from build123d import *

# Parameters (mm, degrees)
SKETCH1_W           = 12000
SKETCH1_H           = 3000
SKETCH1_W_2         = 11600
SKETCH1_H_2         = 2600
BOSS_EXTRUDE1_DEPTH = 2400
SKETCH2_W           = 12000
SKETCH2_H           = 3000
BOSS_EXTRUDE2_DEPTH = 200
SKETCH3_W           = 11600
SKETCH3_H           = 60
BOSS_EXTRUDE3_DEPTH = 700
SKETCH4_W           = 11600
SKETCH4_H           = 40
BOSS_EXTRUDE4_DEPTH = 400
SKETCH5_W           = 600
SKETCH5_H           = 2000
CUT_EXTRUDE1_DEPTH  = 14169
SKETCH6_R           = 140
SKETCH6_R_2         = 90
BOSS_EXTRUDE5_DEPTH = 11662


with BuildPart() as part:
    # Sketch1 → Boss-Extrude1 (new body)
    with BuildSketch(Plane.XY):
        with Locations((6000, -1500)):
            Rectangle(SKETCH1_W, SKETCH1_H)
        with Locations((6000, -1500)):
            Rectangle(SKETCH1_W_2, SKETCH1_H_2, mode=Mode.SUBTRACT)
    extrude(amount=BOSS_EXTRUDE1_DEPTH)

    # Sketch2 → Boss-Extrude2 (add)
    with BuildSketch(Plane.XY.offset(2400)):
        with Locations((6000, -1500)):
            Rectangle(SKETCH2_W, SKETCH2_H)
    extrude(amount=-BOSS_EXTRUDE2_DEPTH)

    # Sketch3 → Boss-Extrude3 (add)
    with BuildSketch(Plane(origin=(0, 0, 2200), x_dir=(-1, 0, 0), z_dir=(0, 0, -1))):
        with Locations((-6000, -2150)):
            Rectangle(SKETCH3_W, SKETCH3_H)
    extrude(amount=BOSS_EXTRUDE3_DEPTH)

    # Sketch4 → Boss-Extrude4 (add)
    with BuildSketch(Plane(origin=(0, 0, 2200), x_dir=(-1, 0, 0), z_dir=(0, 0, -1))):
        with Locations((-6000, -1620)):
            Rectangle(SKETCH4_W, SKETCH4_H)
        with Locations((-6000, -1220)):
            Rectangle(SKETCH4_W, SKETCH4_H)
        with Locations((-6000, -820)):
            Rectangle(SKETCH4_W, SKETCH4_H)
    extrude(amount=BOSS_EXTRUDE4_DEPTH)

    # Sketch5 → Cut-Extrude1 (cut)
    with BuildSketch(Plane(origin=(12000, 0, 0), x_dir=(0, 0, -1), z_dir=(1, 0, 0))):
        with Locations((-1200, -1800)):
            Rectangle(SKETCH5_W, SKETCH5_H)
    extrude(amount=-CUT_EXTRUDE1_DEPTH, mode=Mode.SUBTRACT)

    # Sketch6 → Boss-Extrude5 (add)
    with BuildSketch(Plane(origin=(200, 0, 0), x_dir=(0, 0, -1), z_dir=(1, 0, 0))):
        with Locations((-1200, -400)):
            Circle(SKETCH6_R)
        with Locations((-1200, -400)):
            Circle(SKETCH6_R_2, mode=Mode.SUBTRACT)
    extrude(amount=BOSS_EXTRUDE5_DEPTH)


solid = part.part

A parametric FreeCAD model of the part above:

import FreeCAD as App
import Part
import Sketcher


def add_polygon(sketch, points):
    """Adds a closed chain of lines whose ends are joined by coincident constraints."""
    first, n = sketch.GeometryCount, len(points)
    for a, b in zip(points, points[1:] + points[:1]):
        sketch.addGeometry(Part.LineSegment(App.Vector(*a, 0), App.Vector(*b, 0)), False)
    for i in range(n):
        sketch.addConstraint(Sketcher.Constraint("Coincident", first + i, 2, first + (i + 1) % n, 1))

doc = App.newDocument("Part")
body = doc.addObject("PartDesign::Body", "Body")

sketch1 = body.newObject("Sketcher::SketchObject", "Sketch")
sketch1.AttachmentSupport = (doc.getObject("XY_Plane"), [""])
sketch1.MapMode = "FlatFace"
add_polygon(sketch1, [(0, 0), (0, -3000), (12000, -3000), (12000, 0)])
add_polygon(sketch1, [(11800, -2800), (200, -2800), (200, -200), (11800, -200)])
sketch1.addConstraint([
    Sketcher.Constraint("Vertical", 0),
    Sketcher.Constraint("Horizontal", 1),
    Sketcher.Constraint("Vertical", 2),
    Sketcher.Constraint("Horizontal", 3),
    Sketcher.Constraint("Horizontal", 4),
    Sketcher.Constraint("Vertical", 5),
    Sketcher.Constraint("Horizontal", 6),
    Sketcher.Constraint("Vertical", 7),
    Sketcher.Constraint("Coincident", 3, 2, -1, 1),
    Sketcher.Constraint("DistanceX", 1, 1, 1, 2, 12000.0),
    Sketcher.Constraint("DistanceX", 4, 2, 4, 1, 11600.0),
    Sketcher.Constraint("DistanceY", 0, 2, 0, 1, 3000.0),
    Sketcher.Constraint("DistanceY", 5, 1, 5, 2, 2600.0),
    Sketcher.Constraint("DistanceX", -1, 1, 4, 2, 200.0),
    Sketcher.Constraint("DistanceY", 4, 2, -1, 1, 2800.0),
])
pad1 = body.newObject("PartDesign::Pad", "Pad")
pad1.Profile = sketch1
pad1.Length = 2400

sketch2 = body.newObject("Sketcher::SketchObject", "Sketch001")
sketch2.AttachmentSupport = (doc.getObject("XY_Plane"), [""])
sketch2.MapMode = "FlatFace"
sketch2.AttachmentOffset = App.Placement(App.Vector(0, 0, 2400), App.Rotation())
add_polygon(sketch2, [(0, 0), (0, -3000), (12000, -3000), (12000, 0)])
sketch2.addConstraint([
    Sketcher.Constraint("Vertical", 0),
    Sketcher.Constraint("Horizontal", 1),
    Sketcher.Constraint("Vertical", 2),
    Sketcher.Constraint("Horizontal", 3),
    Sketcher.Constraint("Coincident", 3, 2, -1, 1),
    Sketcher.Constraint("DistanceX", 1, 1, 1, 2, 12000.0),
    Sketcher.Constraint("DistanceY", 0, 2, 0, 1, 3000.0),
])
pad2 = body.newObject("PartDesign::Pad", "Pad001")
pad2.Profile = sketch2
pad2.Length = 200
pad2.Reversed = True

sketch3 = body.newObject("Sketcher::SketchObject", "Sketch002")
sketch3.AttachmentSupport = (doc.getObject("XY_Plane"), [""])
sketch3.MapMode = "FlatFace"
sketch3.AttachmentOffset = App.Placement(App.Vector(0, 0, 2200), App.Rotation())
add_polygon(sketch3, [(11800, -2120), (11800, -2180), (200, -2180), (200, -2120)])
sketch3.addConstraint([
    Sketcher.Constraint("Vertical", 0),
    Sketcher.Constraint("Horizontal", 1),
    Sketcher.Constraint("Vertical", 2),
    Sketcher.Constraint("Horizontal", 3),
    Sketcher.Constraint("DistanceX", 1, 2, 1, 1, 11600.0),
    Sketcher.Constraint("DistanceY", 0, 2, 0, 1, 60.0),
    Sketcher.Constraint("DistanceX", -1, 1, 0, 2, 11800.0),
    Sketcher.Constraint("DistanceY", 0, 2, -1, 1, 2180.0),
])
pad3 = body.newObject("PartDesign::Pad", "Pad002")
pad3.Profile = sketch3
pad3.Length = 700
pad3.Reversed = True

sketch4 = body.newObject("Sketcher::SketchObject", "Sketch003")
sketch4.AttachmentSupport = (doc.getObject("XY_Plane"), [""])
sketch4.MapMode = "FlatFace"
sketch4.AttachmentOffset = App.Placement(App.Vector(0, 0, 2200), App.Rotation())
add_polygon(sketch4, [(11800, -1600), (11800, -1640), (200, -1640), (200, -1600)])
add_polygon(sketch4, [(11800, -1200), (11800, -1240), (200, -1240), (200, -1200)])
add_polygon(sketch4, [(11800, -800), (11800, -840), (200, -840), (200, -800)])
sketch4.addConstraint([
    Sketcher.Constraint("Vertical", 0),
    Sketcher.Constraint("Horizontal", 1),
    Sketcher.Constraint("Vertical", 2),
    Sketcher.Constraint("Horizontal", 3),
    Sketcher.Constraint("Vertical", 4),
    Sketcher.Constraint("Horizontal", 5),
    Sketcher.Constraint("Vertical", 6),
    Sketcher.Constraint("Horizontal", 7),
    Sketcher.Constraint("Vertical", 8),
    Sketcher.Constraint("Horizontal", 9),
    Sketcher.Constraint("Vertical", 10),
    Sketcher.Constraint("Horizontal", 11),
    Sketcher.Constraint("Vertical", 3, 2, 4, 2),
    Sketcher.Constraint("Vertical", 2, 2, 5, 2),
    Sketcher.Constraint("Vertical", 7, 2, 8, 2),
    Sketcher.Constraint("Vertical", 6, 2, 9, 2),
    Sketcher.Constraint("Equal", 2, 4),
    Sketcher.Constraint("Equal", 6, 8),
    Sketcher.Constraint("DistanceX", 1, 2, 1, 1, 11600.0),
    Sketcher.Constraint("DistanceY", 0, 2, 0, 1, 40.0),
    Sketcher.Constraint("DistanceX", -1, 1, 0, 2, 11800.0),
    Sketcher.Constraint("DistanceY", 0, 2, -1, 1, 1640.0),
    Sketcher.Constraint("DistanceY", 4, 2, -1, 1, 1240.0),
    Sketcher.Constraint("DistanceY", 8, 2, -1, 1, 840.0),
])
pad4 = body.newObject("PartDesign::Pad", "Pad003")
pad4.Profile = sketch4
pad4.Length = 400
pad4.Reversed = True

sketch5 = body.newObject("Sketcher::SketchObject", "Sketch004")
sketch5.AttachmentSupport = (doc.getObject("YZ_Plane"), [""])
sketch5.MapMode = "FlatFace"
sketch5.AttachmentOffset = App.Placement(App.Vector(0, 0, 12000), App.Rotation())
add_polygon(sketch5, [(-800, 1500), (-2800, 1500), (-2800, 900), (-800, 900)])
sketch5.addConstraint([
    Sketcher.Constraint("Horizontal", 0),
    Sketcher.Constraint("Vertical", 1),
    Sketcher.Constraint("Horizontal", 2),
    Sketcher.Constraint("Vertical", 3),
    Sketcher.Constraint("DistanceX", 0, 2, 0, 1, 2000.0),
    Sketcher.Constraint("DistanceY", 1, 2, 1, 1, 600.0),
    Sketcher.Constraint("DistanceX", 0, 2, -1, 1, 2800.0),
    Sketcher.Constraint("DistanceY", -1, 1, 0, 2, 1500.0),
])
pocket1 = body.newObject("PartDesign::Pocket", "Pocket")
pocket1.Profile = sketch5
pocket1.Length = 14169

sketch6 = body.newObject("Sketcher::SketchObject", "Sketch005")
sketch6.AttachmentSupport = (doc.getObject("YZ_Plane"), [""])
sketch6.MapMode = "FlatFace"
sketch6.AttachmentOffset = App.Placement(App.Vector(0, 0, 200), App.Rotation())
sketch6.addGeometry([
    Part.Circle(App.Vector(-400, 1200, 0), App.Vector(0, 0, 1), 140),
    Part.Circle(App.Vector(-400, 1200, 0), App.Vector(0, 0, 1), 90),
], False)
sketch6.addConstraint([
    Sketcher.Constraint("Coincident", 1, 3, 0, 3),
    Sketcher.Constraint("Diameter", 0, 280.0),
    Sketcher.Constraint("Diameter", 1, 180.0),
    Sketcher.Constraint("DistanceX", 0, 3, -1, 1, 400.0),
    Sketcher.Constraint("DistanceY", -1, 1, 0, 3, 1200.0),
])
pad5 = body.newObject("PartDesign::Pad", "Pad004")
pad5.Profile = sketch6
pad5.Length = 11662

doc.recompute()
